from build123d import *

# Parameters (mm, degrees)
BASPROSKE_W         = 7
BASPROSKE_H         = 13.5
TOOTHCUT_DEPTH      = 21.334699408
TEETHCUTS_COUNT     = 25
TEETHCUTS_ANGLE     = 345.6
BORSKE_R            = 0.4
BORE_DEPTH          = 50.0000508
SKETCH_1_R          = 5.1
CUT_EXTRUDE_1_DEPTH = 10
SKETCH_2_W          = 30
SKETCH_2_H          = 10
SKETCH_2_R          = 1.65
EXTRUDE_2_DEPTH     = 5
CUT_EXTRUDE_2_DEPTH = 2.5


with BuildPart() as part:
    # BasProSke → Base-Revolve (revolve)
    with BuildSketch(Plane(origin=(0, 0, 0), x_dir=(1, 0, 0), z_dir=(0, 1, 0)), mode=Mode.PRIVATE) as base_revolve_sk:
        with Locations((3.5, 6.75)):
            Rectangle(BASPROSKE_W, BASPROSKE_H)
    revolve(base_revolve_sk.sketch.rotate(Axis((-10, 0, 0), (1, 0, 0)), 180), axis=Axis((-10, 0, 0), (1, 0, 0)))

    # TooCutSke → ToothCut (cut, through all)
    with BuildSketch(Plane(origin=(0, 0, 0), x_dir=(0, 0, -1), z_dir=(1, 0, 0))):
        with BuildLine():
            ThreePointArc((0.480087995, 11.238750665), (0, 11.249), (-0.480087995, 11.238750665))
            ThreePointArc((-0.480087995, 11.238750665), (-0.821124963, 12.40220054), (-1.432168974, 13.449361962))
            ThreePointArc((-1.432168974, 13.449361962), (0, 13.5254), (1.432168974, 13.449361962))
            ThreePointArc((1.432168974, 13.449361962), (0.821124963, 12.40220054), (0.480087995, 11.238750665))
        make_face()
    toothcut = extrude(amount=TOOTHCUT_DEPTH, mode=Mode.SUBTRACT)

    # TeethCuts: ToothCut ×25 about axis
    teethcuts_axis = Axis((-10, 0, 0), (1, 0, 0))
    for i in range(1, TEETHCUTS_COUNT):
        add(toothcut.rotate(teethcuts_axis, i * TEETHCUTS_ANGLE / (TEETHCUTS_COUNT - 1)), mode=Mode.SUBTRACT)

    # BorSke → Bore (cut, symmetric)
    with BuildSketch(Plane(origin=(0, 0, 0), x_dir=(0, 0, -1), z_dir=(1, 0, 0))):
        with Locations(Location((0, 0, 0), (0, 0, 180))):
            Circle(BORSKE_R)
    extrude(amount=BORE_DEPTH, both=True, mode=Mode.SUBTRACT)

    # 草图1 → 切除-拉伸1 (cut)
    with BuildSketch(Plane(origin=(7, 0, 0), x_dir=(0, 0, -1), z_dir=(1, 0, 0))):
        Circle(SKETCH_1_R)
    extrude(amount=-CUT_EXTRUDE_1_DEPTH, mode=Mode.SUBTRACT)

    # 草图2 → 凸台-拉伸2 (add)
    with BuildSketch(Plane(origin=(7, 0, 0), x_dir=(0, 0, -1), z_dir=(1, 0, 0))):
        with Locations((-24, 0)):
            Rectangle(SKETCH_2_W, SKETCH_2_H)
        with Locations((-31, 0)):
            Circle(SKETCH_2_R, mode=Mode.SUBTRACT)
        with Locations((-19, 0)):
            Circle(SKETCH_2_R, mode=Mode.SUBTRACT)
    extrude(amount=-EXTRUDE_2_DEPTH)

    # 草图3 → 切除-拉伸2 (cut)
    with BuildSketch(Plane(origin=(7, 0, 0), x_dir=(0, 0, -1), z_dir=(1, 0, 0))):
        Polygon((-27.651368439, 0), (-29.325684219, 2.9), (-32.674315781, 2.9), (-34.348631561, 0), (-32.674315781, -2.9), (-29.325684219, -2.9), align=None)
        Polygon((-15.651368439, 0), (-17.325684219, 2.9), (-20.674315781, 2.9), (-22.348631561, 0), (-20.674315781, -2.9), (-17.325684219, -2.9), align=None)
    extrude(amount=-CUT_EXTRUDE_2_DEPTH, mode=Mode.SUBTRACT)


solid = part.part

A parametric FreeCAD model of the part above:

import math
import FreeCAD as App
import Part
import Sketcher
Q = App.Units.Quantity

doc = App.newDocument("Part")
body = doc.addObject("PartDesign::Body", "Body")

# Sketch on XZ plane
sketch1 = doc.addObject("Sketcher::SketchObject", "Sketch")
body.addObject(sketch1)
sketch1.AttachmentSupport = (doc.XZ_Plane, [""])
sketch1.MapMode = "FlatFace"
sketch1.addGeometry([
    Part.LineSegment(App.Vector(0, -14, 0), App.Vector(0, 0, 0)),
    Part.LineSegment(App.Vector(0, 0, 0), App.Vector(7, 0, 0)),
    Part.LineSegment(App.Vector(7, 0, 0), App.Vector(7, -14, 0)),
    Part.LineSegment(App.Vector(7, -14, 0), App.Vector(0, -14, 0)),
], False)
sketch1.addConstraint([
    Sketcher.Constraint("Coincident", 0, 2, 1, 1),
    Sketcher.Constraint("Coincident", 1, 2, 2, 1),
    Sketcher.Constraint("Coincident", 2, 2, 3, 1),
    Sketcher.Constraint("Coincident", 3, 2, 0, 1),
    Sketcher.Constraint("Vertical", 0),
    Sketcher.Constraint("Horizontal", 1),
    Sketcher.Constraint("Vertical", 2),
    Sketcher.Constraint("Horizontal", 3),
    Sketcher.Constraint("Coincident", 0, 2, -1, 1),
    Sketcher.Constraint("DistanceX", 1, 1, 1, 2, 7.0),
    Sketcher.Constraint("DistanceY", 0, 1, 0, 2, 13.5),
])
revolution = doc.addObject("PartDesign::Revolution", "Revolution")
body.addObject(revolution)
revolution.Profile = sketch1
revolution.ReferenceAxis = (sketch1, ["H_Axis"])
revolution.Angle = 360

# Sketch on YZ plane
sketch2 = doc.addObject("Sketcher::SketchObject", "Sketch001")
body.addObject(sketch2)
sketch2.AttachmentSupport = (doc.YZ_Plane, [""])
sketch2.MapMode = "FlatFace"
sketch2.addGeometry([
    Part.ArcOfCircle(Part.Circle(App.Vector(0, 0, 0), App.Vector(0, 0, 1), 11.2), math.radians(-2.45), math.radians(2.45)),
    Part.ArcOfCircle(Part.Circle(App.Vector(10.4, -5.4, 0), App.Vector(0, 0, 1), 5), math.radians(53), math.radians(81)),
    Part.ArcOfCircle(Part.Circle(App.Vector(0, 0, 0), App.Vector(0, 0, 1), 13.5), math.radians(-6.08), math.radians(6.08)),
    Part.ArcOfCircle(Part.Circle(App.Vector(10.4, 5.4, 0), App.Vector(0, 0, 1), 5), math.radians(-81), math.radians(-53)),
], False)
sketch2.addConstraint([
    Sketcher.Constraint("Coincident", 0, 1, 1, 2),
    Sketcher.Constraint("Coincident", 1, 1, 2, 1),
    Sketcher.Constraint("Coincident", 2, 2, 3, 2),
    Sketcher.Constraint("Coincident", 3, 1, 0, 2),
    Sketcher.Constraint("Coincident", 0, 3, -1, 1),
    Sketcher.Constraint("Coincident", 2, 3, -1, 1),
    Sketcher.Constraint("Equal", 1, 3),
    Sketcher.Constraint("Symmetric", 1, 3, 3, 3, -1),
    Sketcher.Constraint("Radius", 1, 5.0),
    Sketcher.Constraint("Radius", 0, 11.249),
    Sketcher.Constraint("Radius", 2, 13.5254),
    Sketcher.Constraint("DistanceX", -1, 1, 1, 3, 10.424401),
    Sketcher.Constraint("DistanceX", -1, 1, 0, 1, 11.238751),
])
pocket1 = doc.addObject("PartDesign::Pocket", "Pocket")
body.addObject(pocket1)
pocket1.Profile = sketch2
pocket1.Type = "ThroughAll"
pocket1.Reversed = True
doc.recompute()

polarpattern = doc.addObject("PartDesign::PolarPattern", "PolarPattern")
body.addObject(polarpattern)
polarpattern.Originals = [pocket1]
polarpattern.Axis = (doc.X_Axis, [""])
polarpattern.Angle = 360
polarpattern.Occurrences = 25
body.Tip = polarpattern

# Sketch on YZ plane
sketch3 = doc.addObject("Sketcher::SketchObject", "Sketch002")
body.addObject(sketch3)
sketch3.AttachmentSupport = (doc.YZ_Plane, [""])
sketch3.MapMode = "FlatFace"
sketch3.addGeometry(Part.Circle(App.Vector(0, 0, 0), App.Vector(0, 0, 1), 0.4), False)
sketch3.addConstraint([
    Sketcher.Constraint("Coincident", 0, 3, -1, 1),
    Sketcher.Constraint("Diameter", 0, 0.8),
])
pocket2 = doc.addObject("PartDesign::Pocket", "Pocket001")
body.addObject(pocket2)
pocket2.Profile = sketch3
pocket2.Length = 100.000102
pocket2.Midplane = True

# Sketch on YZ plane
sketch4 = doc.addObject("Sketcher::SketchObject", "Sketch003")
body.addObject(sketch4)
sketch4.AttachmentSupport = (doc.YZ_Plane, [""])
sketch4.MapMode = "FlatFace"
sketch4.AttachmentOffset = App.Placement(App.Vector(0, 0, 7), App.Rotation())
sketch4.addGeometry(Part.Circle(App.Vector(0, 0, 0), App.Vector(0, 0, 1), 5), False)
sketch4.addConstraint([
    Sketcher.Constraint("Coincident", 0, 3, -1, 1),
    Sketcher.Constraint("Diameter", 0, 10.2),
])
pocket3 = doc.addObject("PartDesign::Pocket", "Pocket002")
body.addObject(pocket3)
pocket3.Profile = sketch4
pocket3.Length = 10

# Sketch on YZ plane
sketch5 = doc.addObject("Sketcher::SketchObject", "Sketch004")
body.addObject(sketch5)
sketch5.AttachmentSupport = (doc.YZ_Plane, [""])
sketch5.MapMode = "FlatFace"
sketch5.AttachmentOffset = App.Placement(App.Vector(0, 0, 7), App.Rotation())
sketch5.addGeometry([
    Part.LineSegment(App.Vector(5, 39, 0), App.Vector(-5, 39, 0)),  # 0
    Part.LineSegment(App.Vector(-5, 39, 0), App.Vector(-5, 9, 0)),  # 1
    Part.LineSegment(App.Vector(-5, 9, 0), App.Vector(5, 9, 0)),  # 2
    Part.LineSegment(App.Vector(5, 9, 0), App.Vector(5, 39, 0)),  # 3
    Part.Circle(App.Vector(0, 31, 0), App.Vector(0, 0, 1), 1.6),  # 4
    Part.Circle(App.Vector(0, 19, 0), App.Vector(0, 0, 1), 1.6),  # 5
], False)
sketch5.addConstraint([
    Sketcher.Constraint("Coincident", 0, 2, 1, 1),
    Sketcher.Constraint("Coincident", 1, 2, 2, 1),
    Sketcher.Constraint("Coincident", 2, 2, 3, 1),
    Sketcher.Constraint("Coincident", 3, 2, 0, 1),
    Sketcher.Constraint("Horizontal", 0),
    Sketcher.Constraint("Vertical", 1),
    Sketcher.Constraint("Horizontal", 2),
    Sketcher.Constraint("Vertical", 3),
    Sketcher.Constraint("Equal", 4, 5),
    Sketcher.Constraint("PointOnObject", 4, 3, -2),
    Sketcher.Constraint("PointOnObject", 5, 3, -2),
    Sketcher.Constraint("Diameter", 4, 3.3),
    Sketcher.Constraint("DistanceX", 0, 2, 0, 1, 10.0),
    Sketcher.Constraint("DistanceY", 1, 2, 1, 1, 30.0),
    Sketcher.Constraint("DistanceY", -1, 1, 4, 3, 31.0),
    Sketcher.Constraint("DistanceY", -1, 1, 5, 3, 19.0),
    Sketcher.Constraint("DistanceX", 0, 2, -1, 1, 5.0),
    Sketcher.Constraint("DistanceY", -1, 1, 0, 2, 39.0),
])
pad1 = doc.addObject("PartDesign::Pad", "Pad")
body.addObject(pad1)
pad1.Profile = sketch5
pad1.Length = 5
pad1.Reversed = True

# Sketch on YZ plane
sketch6 = doc.addObject("Sketcher::SketchObject", "Sketch005")
body.addObject(sketch6)
sketch6.AttachmentSupport = (doc.YZ_Plane, [""])
sketch6.MapMode = "FlatFace"
sketch6.AttachmentOffset = App.Placement(App.Vector(0, 0, 7), App.Rotation())
sketch6.addGeometry([
    Part.LineSegment(App.Vector(0, 27.7, 0), App.Vector(2.9, 29.3, 0)),  # 0
    Part.LineSegment(App.Vector(2.9, 29.3, 0), App.Vector(2.9, 32.7, 0)),  # 1
    Part.LineSegment(App.Vector(2.9, 32.7, 0), App.Vector(0, 34.3, 0)),  # 2
    Part.LineSegment(App.Vector(0, 34.3, 0), App.Vector(-2.9, 32.7, 0)),  # 3
    Part.LineSegment(App.Vector(-2.9, 32.7, 0), App.Vector(-2.9, 29.3, 0)),  # 4
    Part.LineSegment(App.Vector(-2.9, 29.3, 0), App.Vector(0, 27.7, 0)),  # 5
    Part.LineSegment(App.Vector(0, 15.7, 0), App.Vector(2.9, 17.3, 0)),  # 6
    Part.LineSegment(App.Vector(2.9, 17.3, 0), App.Vector(2.9, 20.7, 0)),  # 7
    Part.LineSegment(App.Vector(2.9, 20.7, 0), App.Vector(0, 22.3, 0)),  # 8
    Part.LineSegment(App.Vector(0, 22.3, 0), App.Vector(-2.9, 20.7, 0)),  # 9
    Part.LineSegment(App.Vector(-2.9, 20.7, 0), App.Vector(-2.9, 17.3, 0)),  # 10
    Part.LineSegment(App.Vector(-2.9, 17.3, 0), App.Vector(0, 15.7, 0)),  # 11
], False)
sketch6.addConstraint([
    Sketcher.Constraint("Coincident", 0, 2, 1, 1),
    Sketcher.Constraint("Coincident", 1, 2, 2, 1),
    Sketcher.Constraint("Coincident", 2, 2, 3, 1),
    Sketcher.Constraint("Coincident", 3, 2, 4, 1),
    Sketcher.Constraint("Coincident", 4, 2, 5, 1),
    Sketcher.Constraint("Coincident", 5, 2, 0, 1),
    Sketcher.Constraint("Coincident", 6, 2, 7, 1),
    Sketcher.Constraint("Coincident", 7, 2, 8, 1),
    Sketcher.Constraint("Coincident", 8, 2, 9, 1),
    Sketcher.Constraint("Coincident", 9, 2, 10, 1),
    Sketcher.Constraint("Coincident", 10, 2, 11, 1),
    Sketcher.Constraint("Coincident", 11, 2, 6, 1),
    Sketcher.Constraint("Vertical", 1),
    Sketcher.Constraint("Vertical", 4),
    Sketcher.Constraint("Vertical", 7),
    Sketcher.Constraint("Vertical", 10),
    Sketcher.Constraint("Symmetric", 1, 2, 3, 2, -2),
    Sketcher.Constraint("Symmetric", 7, 2, 9, 2, -2),
    Sketcher.Constraint("PointOnObject", 2, 2, -2),
    Sketcher.Constraint("PointOnObject", 5, 2, -2),
    Sketcher.Constraint("PointOnObject", 8, 2, -2),
    Sketcher.Constraint("PointOnObject", 11, 2, -2),
    Sketcher.Constraint("Parallel", 0, 3),
    Sketcher.Constraint("Parallel", 2, 5),
    Sketcher.Constraint("Parallel", 3, 6),
    Sketcher.Constraint("Parallel", 5, 8),
    Sketcher.Constraint("Parallel", 8, 11),
    Sketcher.Constraint("Vertical", 1, 2, 6, 2),
    Sketcher.Constraint("Equal", 4, 7),
    Sketcher.Constraint("Angle", 0, Q("30 deg")),
    Sketcher.Constraint("DistanceY", 6, 2, 0, 2, 12.0),
    Sketcher.Constraint("DistanceX", -1, 1, 0, 2, 2.9),
    Sketcher.Constraint("DistanceY", 1, 1, 1, 2, 3.348632),
    Sketcher.Constraint("DistanceY", -1, 1, 2, 2, 34.348632),
])
pocket4 = doc.addObject("PartDesign::Pocket", "Pocket003")
body.addObject(pocket4)
pocket4.Profile = sketch6
pocket4.Length = 2.5

doc.recompute()
